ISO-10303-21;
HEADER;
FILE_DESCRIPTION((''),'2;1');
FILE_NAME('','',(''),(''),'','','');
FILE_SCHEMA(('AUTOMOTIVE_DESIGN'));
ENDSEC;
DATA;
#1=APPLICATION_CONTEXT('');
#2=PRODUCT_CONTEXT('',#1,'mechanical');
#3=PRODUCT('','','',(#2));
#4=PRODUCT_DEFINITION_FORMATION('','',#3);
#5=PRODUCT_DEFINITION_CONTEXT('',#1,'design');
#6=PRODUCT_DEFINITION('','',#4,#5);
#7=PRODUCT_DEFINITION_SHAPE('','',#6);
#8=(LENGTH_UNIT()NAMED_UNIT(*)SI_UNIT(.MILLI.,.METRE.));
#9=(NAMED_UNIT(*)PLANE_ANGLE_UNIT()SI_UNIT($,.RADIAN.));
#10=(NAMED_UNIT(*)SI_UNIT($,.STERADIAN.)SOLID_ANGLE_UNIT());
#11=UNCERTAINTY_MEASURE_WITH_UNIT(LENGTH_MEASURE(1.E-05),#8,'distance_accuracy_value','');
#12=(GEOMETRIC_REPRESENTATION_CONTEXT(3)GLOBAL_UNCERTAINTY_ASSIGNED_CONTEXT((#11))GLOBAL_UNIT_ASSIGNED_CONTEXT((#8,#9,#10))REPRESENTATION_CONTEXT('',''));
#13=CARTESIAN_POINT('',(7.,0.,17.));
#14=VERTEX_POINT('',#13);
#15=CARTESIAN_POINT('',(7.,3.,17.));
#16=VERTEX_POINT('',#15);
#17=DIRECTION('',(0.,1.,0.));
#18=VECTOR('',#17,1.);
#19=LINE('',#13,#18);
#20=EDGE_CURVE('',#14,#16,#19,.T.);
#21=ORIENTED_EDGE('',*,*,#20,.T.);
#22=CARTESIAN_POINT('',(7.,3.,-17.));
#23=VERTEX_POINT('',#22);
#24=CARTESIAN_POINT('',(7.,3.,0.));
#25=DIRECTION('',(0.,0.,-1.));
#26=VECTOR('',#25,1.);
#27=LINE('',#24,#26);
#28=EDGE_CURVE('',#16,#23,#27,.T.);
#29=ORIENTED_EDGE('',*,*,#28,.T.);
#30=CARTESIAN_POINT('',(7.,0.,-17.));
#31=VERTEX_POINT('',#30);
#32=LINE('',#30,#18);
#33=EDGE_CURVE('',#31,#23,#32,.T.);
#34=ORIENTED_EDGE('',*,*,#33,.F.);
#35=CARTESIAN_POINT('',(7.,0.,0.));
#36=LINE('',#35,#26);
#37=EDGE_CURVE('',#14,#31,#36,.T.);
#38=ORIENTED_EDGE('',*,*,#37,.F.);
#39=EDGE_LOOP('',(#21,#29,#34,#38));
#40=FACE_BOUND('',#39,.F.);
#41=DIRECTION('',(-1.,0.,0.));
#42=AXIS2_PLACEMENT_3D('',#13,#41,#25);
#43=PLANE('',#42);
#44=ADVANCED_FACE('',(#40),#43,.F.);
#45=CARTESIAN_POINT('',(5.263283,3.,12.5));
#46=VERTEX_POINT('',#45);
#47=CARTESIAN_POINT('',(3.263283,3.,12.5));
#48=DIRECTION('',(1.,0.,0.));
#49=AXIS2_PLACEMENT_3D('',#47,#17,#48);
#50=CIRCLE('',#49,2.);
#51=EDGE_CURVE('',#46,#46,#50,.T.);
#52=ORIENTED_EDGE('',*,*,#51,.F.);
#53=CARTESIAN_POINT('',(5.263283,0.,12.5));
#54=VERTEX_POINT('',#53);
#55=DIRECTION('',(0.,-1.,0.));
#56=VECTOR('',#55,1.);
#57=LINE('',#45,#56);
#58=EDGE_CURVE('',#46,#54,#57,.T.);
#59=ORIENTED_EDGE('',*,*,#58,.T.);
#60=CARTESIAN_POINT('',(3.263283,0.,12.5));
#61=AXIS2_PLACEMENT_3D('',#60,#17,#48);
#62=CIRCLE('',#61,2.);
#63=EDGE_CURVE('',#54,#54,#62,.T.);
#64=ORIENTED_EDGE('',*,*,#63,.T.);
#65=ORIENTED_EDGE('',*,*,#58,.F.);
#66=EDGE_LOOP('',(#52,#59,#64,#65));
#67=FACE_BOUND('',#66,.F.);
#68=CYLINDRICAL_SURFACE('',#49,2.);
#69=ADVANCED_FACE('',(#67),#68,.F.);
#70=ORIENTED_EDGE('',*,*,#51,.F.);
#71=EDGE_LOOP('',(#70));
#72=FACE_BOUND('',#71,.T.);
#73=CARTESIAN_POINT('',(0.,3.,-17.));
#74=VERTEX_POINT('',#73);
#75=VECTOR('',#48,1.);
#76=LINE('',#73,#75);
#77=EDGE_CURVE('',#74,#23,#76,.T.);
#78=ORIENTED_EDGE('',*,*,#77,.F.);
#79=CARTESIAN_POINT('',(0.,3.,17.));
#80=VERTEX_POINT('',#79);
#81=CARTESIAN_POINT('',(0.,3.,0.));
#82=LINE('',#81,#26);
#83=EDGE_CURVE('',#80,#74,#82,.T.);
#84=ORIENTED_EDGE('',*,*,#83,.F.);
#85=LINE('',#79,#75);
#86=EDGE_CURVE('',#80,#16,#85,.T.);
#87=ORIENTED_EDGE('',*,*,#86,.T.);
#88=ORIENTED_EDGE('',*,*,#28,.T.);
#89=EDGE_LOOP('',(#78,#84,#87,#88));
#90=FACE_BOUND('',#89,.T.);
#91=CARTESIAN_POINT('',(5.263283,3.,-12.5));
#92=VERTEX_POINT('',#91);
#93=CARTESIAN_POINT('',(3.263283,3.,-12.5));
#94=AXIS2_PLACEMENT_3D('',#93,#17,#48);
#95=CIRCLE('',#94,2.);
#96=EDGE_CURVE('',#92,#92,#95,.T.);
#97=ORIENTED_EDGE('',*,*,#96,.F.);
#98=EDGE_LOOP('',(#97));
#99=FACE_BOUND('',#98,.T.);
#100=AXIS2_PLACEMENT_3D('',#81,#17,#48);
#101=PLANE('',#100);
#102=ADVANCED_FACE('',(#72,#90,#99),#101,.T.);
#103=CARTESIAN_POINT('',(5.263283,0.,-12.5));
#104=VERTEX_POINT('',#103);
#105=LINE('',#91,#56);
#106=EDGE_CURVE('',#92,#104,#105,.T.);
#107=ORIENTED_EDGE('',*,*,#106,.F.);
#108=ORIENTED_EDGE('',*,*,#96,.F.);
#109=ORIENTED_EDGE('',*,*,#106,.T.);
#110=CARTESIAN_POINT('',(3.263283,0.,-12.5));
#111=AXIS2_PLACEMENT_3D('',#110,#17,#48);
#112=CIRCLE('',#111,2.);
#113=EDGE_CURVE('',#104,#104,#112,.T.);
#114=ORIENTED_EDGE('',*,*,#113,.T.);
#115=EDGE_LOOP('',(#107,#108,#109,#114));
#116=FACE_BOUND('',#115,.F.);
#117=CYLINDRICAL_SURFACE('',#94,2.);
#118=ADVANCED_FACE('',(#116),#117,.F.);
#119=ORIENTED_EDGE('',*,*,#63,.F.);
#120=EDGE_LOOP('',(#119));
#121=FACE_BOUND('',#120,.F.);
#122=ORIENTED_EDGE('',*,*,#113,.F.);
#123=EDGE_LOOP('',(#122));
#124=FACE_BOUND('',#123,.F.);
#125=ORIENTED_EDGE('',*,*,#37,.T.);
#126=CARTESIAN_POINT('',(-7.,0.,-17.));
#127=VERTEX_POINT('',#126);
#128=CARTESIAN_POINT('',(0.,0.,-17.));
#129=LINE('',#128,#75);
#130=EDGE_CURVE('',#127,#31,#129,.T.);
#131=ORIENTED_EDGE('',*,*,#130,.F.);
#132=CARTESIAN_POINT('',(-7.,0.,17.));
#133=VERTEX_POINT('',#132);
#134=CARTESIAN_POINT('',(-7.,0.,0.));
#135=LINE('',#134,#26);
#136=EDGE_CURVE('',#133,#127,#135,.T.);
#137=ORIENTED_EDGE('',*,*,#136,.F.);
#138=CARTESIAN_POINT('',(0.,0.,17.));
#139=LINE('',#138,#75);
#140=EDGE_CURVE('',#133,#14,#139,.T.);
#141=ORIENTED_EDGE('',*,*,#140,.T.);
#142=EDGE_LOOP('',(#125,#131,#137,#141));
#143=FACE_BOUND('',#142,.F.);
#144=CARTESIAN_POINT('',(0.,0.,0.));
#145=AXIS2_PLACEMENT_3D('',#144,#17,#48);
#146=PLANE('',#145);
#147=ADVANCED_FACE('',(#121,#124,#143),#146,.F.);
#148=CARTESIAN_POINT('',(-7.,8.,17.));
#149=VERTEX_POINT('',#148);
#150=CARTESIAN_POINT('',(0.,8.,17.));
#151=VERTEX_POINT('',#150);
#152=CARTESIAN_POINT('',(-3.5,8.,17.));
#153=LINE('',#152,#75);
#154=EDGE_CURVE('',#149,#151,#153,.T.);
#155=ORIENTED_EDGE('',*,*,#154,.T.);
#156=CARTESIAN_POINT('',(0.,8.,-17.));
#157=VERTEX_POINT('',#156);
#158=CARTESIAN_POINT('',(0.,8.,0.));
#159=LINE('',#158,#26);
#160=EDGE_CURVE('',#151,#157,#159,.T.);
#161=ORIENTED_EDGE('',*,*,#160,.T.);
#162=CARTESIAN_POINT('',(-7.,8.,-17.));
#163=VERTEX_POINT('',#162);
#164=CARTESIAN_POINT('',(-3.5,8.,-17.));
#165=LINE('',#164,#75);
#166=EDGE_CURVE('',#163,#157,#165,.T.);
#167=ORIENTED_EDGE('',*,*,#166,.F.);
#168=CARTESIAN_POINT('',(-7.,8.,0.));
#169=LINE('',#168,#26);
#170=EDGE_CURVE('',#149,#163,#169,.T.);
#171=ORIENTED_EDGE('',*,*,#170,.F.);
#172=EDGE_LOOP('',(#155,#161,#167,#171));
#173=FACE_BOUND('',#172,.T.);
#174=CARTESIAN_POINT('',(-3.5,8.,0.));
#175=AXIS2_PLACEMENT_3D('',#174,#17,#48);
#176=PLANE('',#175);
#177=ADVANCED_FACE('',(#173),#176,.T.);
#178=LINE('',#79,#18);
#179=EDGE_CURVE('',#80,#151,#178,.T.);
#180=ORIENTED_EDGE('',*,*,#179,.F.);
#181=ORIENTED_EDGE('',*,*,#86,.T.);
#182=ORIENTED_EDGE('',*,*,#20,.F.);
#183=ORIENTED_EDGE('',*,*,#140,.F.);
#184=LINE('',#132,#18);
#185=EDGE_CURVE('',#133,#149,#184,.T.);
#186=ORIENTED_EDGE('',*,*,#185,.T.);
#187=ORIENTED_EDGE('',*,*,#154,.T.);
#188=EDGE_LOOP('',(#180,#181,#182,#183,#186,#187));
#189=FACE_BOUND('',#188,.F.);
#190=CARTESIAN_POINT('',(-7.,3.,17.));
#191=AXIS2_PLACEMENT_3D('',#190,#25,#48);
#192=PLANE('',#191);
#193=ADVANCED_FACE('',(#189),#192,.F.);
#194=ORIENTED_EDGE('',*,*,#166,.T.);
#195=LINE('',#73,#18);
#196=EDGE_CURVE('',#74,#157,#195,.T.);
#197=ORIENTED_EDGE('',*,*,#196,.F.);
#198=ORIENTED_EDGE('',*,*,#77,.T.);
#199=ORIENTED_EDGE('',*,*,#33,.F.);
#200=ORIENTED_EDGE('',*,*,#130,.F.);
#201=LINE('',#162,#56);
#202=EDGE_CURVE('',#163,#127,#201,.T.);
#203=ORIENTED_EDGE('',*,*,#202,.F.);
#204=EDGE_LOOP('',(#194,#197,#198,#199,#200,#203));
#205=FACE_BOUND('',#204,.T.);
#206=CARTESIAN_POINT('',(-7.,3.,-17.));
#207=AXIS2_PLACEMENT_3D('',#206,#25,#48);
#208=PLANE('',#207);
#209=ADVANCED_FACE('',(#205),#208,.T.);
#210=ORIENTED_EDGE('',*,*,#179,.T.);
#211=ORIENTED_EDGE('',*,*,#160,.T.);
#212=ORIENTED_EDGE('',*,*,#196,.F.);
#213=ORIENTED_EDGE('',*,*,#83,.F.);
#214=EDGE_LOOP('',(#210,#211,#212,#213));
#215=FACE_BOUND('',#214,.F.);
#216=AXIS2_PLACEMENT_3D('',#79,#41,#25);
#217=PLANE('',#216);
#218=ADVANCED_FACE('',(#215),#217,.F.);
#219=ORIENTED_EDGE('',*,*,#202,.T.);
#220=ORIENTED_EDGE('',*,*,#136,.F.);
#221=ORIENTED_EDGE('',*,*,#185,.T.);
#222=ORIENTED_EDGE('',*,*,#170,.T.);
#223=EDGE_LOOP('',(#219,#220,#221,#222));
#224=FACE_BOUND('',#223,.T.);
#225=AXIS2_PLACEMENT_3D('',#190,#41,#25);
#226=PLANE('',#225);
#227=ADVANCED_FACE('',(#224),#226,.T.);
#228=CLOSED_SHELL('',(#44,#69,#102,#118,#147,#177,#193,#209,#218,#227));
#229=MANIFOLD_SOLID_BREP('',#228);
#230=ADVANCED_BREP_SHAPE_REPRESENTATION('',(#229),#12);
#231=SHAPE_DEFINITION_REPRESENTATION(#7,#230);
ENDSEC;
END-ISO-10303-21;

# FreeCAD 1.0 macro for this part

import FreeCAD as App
import Part
import Sketcher


def add_polygon(sketch, points):
    """Adds a closed chain of lines whose ends are joined by coincident constraints."""
    first, n = sketch.GeometryCount, len(points)
    for a, b in zip(points, points[1:] + points[:1]):
        sketch.addGeometry(Part.LineSegment(App.Vector(*a, 0), App.Vector(*b, 0)), False)
    for i in range(n):
        sketch.addConstraint(Sketcher.Constraint("Coincident", first + i, 2, first + (i + 1) % n, 1))

doc = App.newDocument("Part")
body = doc.addObject("PartDesign::Body", "Body")

# Sketch on XZ plane
sketch1 = doc.addObject("Sketcher::SketchObject", "Sketch")
body.addObject(sketch1)
sketch1.AttachmentSupport = (doc.XZ_Plane, [""])
sketch1.MapMode = "FlatFace"
add_polygon(sketch1, [(-7, -17), (-7, 17), (7, 17), (7, -17)])  # lines 0-3
sketch1.addConstraint([
    Sketcher.Constraint("Vertical", 0),
    Sketcher.Constraint("Horizontal", 1),
    Sketcher.Constraint("Vertical", 2),
    Sketcher.Constraint("Horizontal", 3),
    Sketcher.Constraint("Symmetric", 0, 2, 2, 2, -1, 1),
    Sketcher.Constraint("DistanceX", 1, 1, 1, 2, 14.0),
    Sketcher.Constraint("DistanceY", 0, 1, 0, 2, 34.0),
])
pad1 = doc.addObject("PartDesign::Pad", "Pad")
body.addObject(pad1)
pad1.Profile = sketch1
pad1.Length = 3
pad1.Reversed = True

# Sketch on XZ plane
sketch2 = doc.addObject("Sketcher::SketchObject", "Sketch001")
body.addObject(sketch2)
sketch2.AttachmentSupport = (doc.XZ_Plane, [""])
sketch2.MapMode = "FlatFace"
sketch2.AttachmentOffset = App.Placement(App.Vector(0, 0, -3), App.Rotation())
add_polygon(sketch2, [(-7, -17), (-7, 17), (0, 17), (0, -17)])  # lines 0-3
sketch2.addConstraint([
    Sketcher.Constraint("Vertical", 0),
    Sketcher.Constraint("Horizontal", 1),
    Sketcher.Constraint("Vertical", 2),
    Sketcher.Constraint("Horizontal", 3),
    Sketcher.Constraint("Symmetric", 1, 2, 2, 2, -1, 1),
    Sketcher.Constraint("DistanceX", 1, 1, 1, 2, 7.0),
    Sketcher.Constraint("DistanceY", 0, 1, 0, 2, 34.0),
])
pad2 = doc.addObject("PartDesign::Pad", "Pad001")
body.addObject(pad2)
pad2.Profile = sketch2
pad2.Length = 5
pad2.Reversed = True

# Sketch on XZ plane
sketch3 = doc.addObject("Sketcher::SketchObject", "Sketch002")
body.addObject(sketch3)
sketch3.AttachmentSupport = (doc.XZ_Plane, [""])
sketch3.MapMode = "FlatFace"
sketch3.AttachmentOffset = App.Placement(App.Vector(0, 0, -3), App.Rotation())
sketch3.addGeometry([
    Part.Circle(App.Vector(3.3, 12.5, 0), App.Vector(0, 0, 1), 2),
    Part.Circle(App.Vector(3.3, -12.5, 0), App.Vector(0, 0, 1), 2),
], False)
sketch3.addConstraint([
    Sketcher.Constraint("Equal", 0, 1),
    Sketcher.Constraint("Symmetric", 0, 3, 1, 3, -1),
    Sketcher.Constraint("Diameter", 0, 4.0),
    Sketcher.Constraint("DistanceY", 1, 3, 0, 3, 25.0),
    Sketcher.Constraint("DistanceX", -1, 1, 0, 3, 3.263283),
])
pocket1 = doc.addObject("PartDesign::Pocket", "Pocket")
body.addObject(pocket1)
pocket1.Profile = sketch3
pocket1.Length = 5
pocket1.Reversed = True

doc.recompute()
